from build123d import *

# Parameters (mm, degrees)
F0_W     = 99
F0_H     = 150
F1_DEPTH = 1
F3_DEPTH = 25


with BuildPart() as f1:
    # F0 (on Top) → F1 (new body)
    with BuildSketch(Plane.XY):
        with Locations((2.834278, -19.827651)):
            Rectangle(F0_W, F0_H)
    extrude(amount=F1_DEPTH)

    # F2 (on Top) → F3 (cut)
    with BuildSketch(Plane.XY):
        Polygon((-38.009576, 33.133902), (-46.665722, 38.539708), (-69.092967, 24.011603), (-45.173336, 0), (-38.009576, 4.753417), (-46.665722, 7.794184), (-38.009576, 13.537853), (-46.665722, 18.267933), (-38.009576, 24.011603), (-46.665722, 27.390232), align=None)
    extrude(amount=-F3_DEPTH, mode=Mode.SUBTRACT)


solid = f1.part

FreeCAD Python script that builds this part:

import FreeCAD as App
import Part
import Sketcher

V = App.Vector

doc = App.newDocument("Part")
body = doc.addObject("PartDesign::Body", "Body")

sketch1 = body.newObject("Sketcher::SketchObject", "Sketch")
sketch1.AttachmentSupport = (doc.getObject("XY_Plane"), [""])
sketch1.MapMode = "FlatFace"
sketch1.addGeometry([
    Part.LineSegment(V(-46.665722, 55.172349, 0), V(-46.665722, -94.827651, 0)),
    Part.LineSegment(V(-46.665722, -94.827651, 0), V(52.334278, -94.827651, 0)),
    Part.LineSegment(V(52.334278, -94.827651, 0), V(52.334278, 55.172349, 0)),
    Part.LineSegment(V(52.334278, 55.172349, 0), V(-46.665722, 55.172349, 0)),
], False)
sketch1.addConstraint([
    Sketcher.Constraint("Coincident", 0, 2, 1, 1),
    Sketcher.Constraint("Coincident", 1, 2, 2, 1),
    Sketcher.Constraint("Coincident", 2, 2, 3, 1),
    Sketcher.Constraint("Coincident", 3, 2, 0, 1),
    Sketcher.Constraint("Vertical", 0),
    Sketcher.Constraint("Horizontal", 1),
    Sketcher.Constraint("Vertical", 2),
    Sketcher.Constraint("Horizontal", 3),
    Sketcher.Constraint("DistanceX", 1, 1, 1, 2, 99.0),
    Sketcher.Constraint("DistanceY", 0, 2, 0, 1, 150.0),
    Sketcher.Constraint("DistanceY", 0, 2, -1, 1, 94.827651),
    Sketcher.Constraint("DistanceX", 0, 2, -1, 1, 46.665722),
])
pad1 = body.newObject("PartDesign::Pad", "Pad")
pad1.Profile = sketch1
pad1.Length = 1

sketch2 = body.newObject("Sketcher::SketchObject", "Sketch001")
sketch2.AttachmentSupport = (doc.getObject("XY_Plane"), [""])
sketch2.MapMode = "FlatFace"
sketch2.addGeometry([
    Part.LineSegment(V(-38.009576, 33.133902, 0), V(-46.665722, 38.539708, 0)),
    Part.LineSegment(V(-46.665722, 38.539708, 0), V(-69.092967, 24.011603, 0)),
    Part.LineSegment(V(-69.092967, 24.011603, 0), V(-45.173336, 0, 0)),
    Part.LineSegment(V(-45.173336, 0, 0), V(-38.009576, 4.753417, 0)),
    Part.LineSegment(V(-38.009576, 4.753417, 0), V(-46.665722, 7.794184, 0)),
    Part.LineSegment(V(-46.665722, 7.794184, 0), V(-38.009576, 13.537853, 0)),
    Part.LineSegment(V(-38.009576, 13.537853, 0), V(-46.665722, 18.267933, 0)),
    Part.LineSegment(V(-46.665722, 18.267933, 0), V(-38.009576, 24.011603, 0)),
    Part.LineSegment(V(-38.009576, 24.011603, 0), V(-46.665722, 27.390232, 0)),
    Part.LineSegment(V(-46.665722, 27.390232, 0), V(-38.009576, 33.133902, 0)),
], False)
sketch2.addConstraint([
    Sketcher.Constraint("Coincident", 0, 2, 1, 1),
    Sketcher.Constraint("Coincident", 1, 2, 2, 1),
    Sketcher.Constraint("Coincident", 2, 2, 3, 1),
    Sketcher.Constraint("Coincident", 3, 2, 4, 1),
    Sketcher.Constraint("Coincident", 4, 2, 5, 1),
    Sketcher.Constraint("Coincident", 5, 2, 6, 1),
    Sketcher.Constraint("Coincident", 6, 2, 7, 1),
    Sketcher.Constraint("Coincident", 7, 2, 8, 1),
    Sketcher.Constraint("Coincident", 8, 2, 9, 1),
    Sketcher.Constraint("Coincident", 9, 2, 0, 1),
    Sketcher.Constraint("PointOnObject", 2, 2, -1),
    Sketcher.Constraint("Parallel", 3, 5),
    Sketcher.Constraint("Parallel", 5, 7),
    Sketcher.Constraint("Parallel", 7, 9),
    Sketcher.Constraint("Horizontal", 1, 2, 7, 2),
    Sketcher.Constraint("Vertical", 0, 2, 4, 2),
    Sketcher.Constraint("Vertical", 3, 2, 5, 2),
    Sketcher.Constraint("Vertical", 4, 2, 6, 2),
    Sketcher.Constraint("Vertical", 5, 2, 7, 2),
    Sketcher.Constraint("Vertical", 6, 2, 8, 2),
    Sketcher.Constraint("Vertical", 7, 2, 9, 2),
    Sketcher.Constraint("Distance", 4, 9.1747),
    Sketcher.Constraint("DistanceY", 6, 2, 8, 2, 9.122299),
    Sketcher.Constraint("Distance", 0, 10.205469),
    Sketcher.Constraint("Distance", 1, 26.721661),
    Sketcher.Constraint("Distance", 3, 8.59735),
    Sketcher.Constraint("Distance", 7, 10.388388),
    Sketcher.Constraint("DistanceX", 1, 2, 2, 2, 23.919631),
    Sketcher.Constraint("DistanceY", 3, 2, 0, 2, 33.786291),
    Sketcher.Constraint("DistanceX", 0, 2, -1, 1, 46.665722),
])
pocket1 = body.newObject("PartDesign::Pocket", "Pocket")
pocket1.Profile = sketch2
pocket1.Length = 25

doc.recompute()
